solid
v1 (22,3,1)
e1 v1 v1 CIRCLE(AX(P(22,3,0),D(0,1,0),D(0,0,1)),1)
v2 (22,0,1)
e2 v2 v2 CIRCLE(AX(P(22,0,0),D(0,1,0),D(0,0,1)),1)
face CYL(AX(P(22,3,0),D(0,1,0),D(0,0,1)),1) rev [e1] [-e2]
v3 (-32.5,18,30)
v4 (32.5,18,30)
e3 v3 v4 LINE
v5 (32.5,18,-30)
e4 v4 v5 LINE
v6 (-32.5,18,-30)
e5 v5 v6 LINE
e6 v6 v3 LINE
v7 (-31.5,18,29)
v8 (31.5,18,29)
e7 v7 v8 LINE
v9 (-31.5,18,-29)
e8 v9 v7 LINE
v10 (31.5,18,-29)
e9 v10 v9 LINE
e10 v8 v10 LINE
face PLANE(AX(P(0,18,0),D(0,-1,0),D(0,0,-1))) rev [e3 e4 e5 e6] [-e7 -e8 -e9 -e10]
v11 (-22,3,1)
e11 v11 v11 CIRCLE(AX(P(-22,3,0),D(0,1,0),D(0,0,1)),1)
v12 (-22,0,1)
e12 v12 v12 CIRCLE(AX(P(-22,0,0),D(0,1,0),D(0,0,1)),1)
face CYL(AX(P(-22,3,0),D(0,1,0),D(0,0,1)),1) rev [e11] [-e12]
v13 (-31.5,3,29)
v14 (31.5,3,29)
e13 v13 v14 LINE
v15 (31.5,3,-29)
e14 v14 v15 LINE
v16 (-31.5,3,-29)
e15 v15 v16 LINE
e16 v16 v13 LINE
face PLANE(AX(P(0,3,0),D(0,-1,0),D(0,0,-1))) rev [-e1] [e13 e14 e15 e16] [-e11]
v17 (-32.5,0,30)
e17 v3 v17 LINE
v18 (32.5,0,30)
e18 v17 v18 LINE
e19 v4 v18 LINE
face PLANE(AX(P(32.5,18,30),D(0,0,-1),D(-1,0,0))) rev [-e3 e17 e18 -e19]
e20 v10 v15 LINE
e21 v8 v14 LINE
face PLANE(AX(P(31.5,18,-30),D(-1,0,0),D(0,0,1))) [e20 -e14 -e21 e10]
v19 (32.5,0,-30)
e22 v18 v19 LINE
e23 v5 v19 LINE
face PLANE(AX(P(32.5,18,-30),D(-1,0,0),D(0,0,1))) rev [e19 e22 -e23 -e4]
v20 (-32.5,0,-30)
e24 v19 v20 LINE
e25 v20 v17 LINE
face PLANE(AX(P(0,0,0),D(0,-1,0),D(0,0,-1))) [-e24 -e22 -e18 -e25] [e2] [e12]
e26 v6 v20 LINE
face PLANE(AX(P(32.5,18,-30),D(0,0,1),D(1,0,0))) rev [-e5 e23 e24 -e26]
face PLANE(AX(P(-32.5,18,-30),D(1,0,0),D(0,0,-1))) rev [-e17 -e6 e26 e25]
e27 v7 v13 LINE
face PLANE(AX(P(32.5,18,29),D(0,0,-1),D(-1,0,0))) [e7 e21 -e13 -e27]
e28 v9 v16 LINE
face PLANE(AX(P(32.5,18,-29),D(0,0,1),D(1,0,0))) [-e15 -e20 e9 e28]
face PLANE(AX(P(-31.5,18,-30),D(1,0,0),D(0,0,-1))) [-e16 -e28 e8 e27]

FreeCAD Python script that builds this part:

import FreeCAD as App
import Part
import Sketcher
from FreeCAD import Vector
Q = App.Units.Quantity


def faces_at(feature, points):
    """Names of the faces that lie closest to the given points."""
    faces = feature.Shape.Faces
    near = lambda p: min(range(len(faces)), key=lambda i: faces[i].distToShape(Part.Vertex(*p))[0])
    return sorted({f"Face{near(p) + 1}" for p in points})


def add_polygon(sketch, points):
    """Adds a closed chain of lines whose ends are joined by coincident constraints."""
    first, n = sketch.GeometryCount, len(points)
    for a, b in zip(points, points[1:] + points[:1]):
        sketch.addGeometry(Part.LineSegment(App.Vector(*a, 0), App.Vector(*b, 0)), False)
    for i in range(n):
        sketch.addConstraint(Sketcher.Constraint("Coincident", first + i, 2, first + (i + 1) % n, 1))

doc = App.newDocument("Part")
body = doc.addObject("PartDesign::Body", "Body")

# Sketch on XZ plane
sketch1 = body.newObject("Sketcher::SketchObject", "Sketch")
sketch1.AttachmentSupport = (doc.getObject("XZ_Plane"), [""])
sketch1.MapMode = "FlatFace"
add_polygon(sketch1, [(-32.5, -30), (-32.5, 30), (32.5, 30), (32.5, -30)])  # lines 0-3
sketch1.addConstraint(Sketcher.Constraint("Vertical", 0))
sketch1.addConstraint(Sketcher.Constraint("Horizontal", 1))
sketch1.addConstraint(Sketcher.Constraint("Vertical", 2))
sketch1.addConstraint(Sketcher.Constraint("Horizontal", 3))
sketch1.addConstraint(Sketcher.Constraint("Symmetric", 0, 2, 2, 2, -1, 1))
sketch1.addConstraint(Sketcher.Constraint("DistanceX", 1, 1, 1, 2, Q("65 mm")))
sketch1.addConstraint(Sketcher.Constraint("DistanceY", 0, 1, 0, 2, Q("60 mm")))
pad1 = body.newObject("PartDesign::Pad", "Pad")
pad1.Profile = sketch1
pad1.Length = 18
pad1.Reversed = True
doc.recompute()

thickness = body.newObject("PartDesign::Thickness", "Thickness")
thickness.Base = (pad1, faces_at(pad1, [(0, 18, 0)]))
thickness.Value = 3
thickness.Reversed = True
thickness.Join = "Intersection"

# Sketch on XY plane
sketch2 = body.newObject("Sketcher::SketchObject", "Sketch001")
sketch2.AttachmentSupport = (doc.getObject("XY_Plane"), [""])
sketch2.MapMode = "FlatFace"
sketch2.AttachmentOffset = App.Placement(Vector(0, 0, 27), App.Rotation())
add_polygon(sketch2, [(-29.5, 18), (-29.5, 3), (29.5, 3), (29.5, 18)])  # lines 0-3
sketch2.addConstraint(Sketcher.Constraint("Vertical", 0))
sketch2.addConstraint(Sketcher.Constraint("Horizontal", 1))
sketch2.addConstraint(Sketcher.Constraint("Vertical", 2))
sketch2.addConstraint(Sketcher.Constraint("Horizontal", 3))
sketch2.addConstraint(Sketcher.Constraint("DistanceX", 1, 1, 1, 2, Q("59 mm")))
sketch2.addConstraint(Sketcher.Constraint("DistanceY", 0, 2, 0, 1, Q("15 mm")))
sketch2.addConstraint(Sketcher.Constraint("DistanceY", -1, 1, 0, 2, Q("3 mm")))
sketch2.addConstraint(Sketcher.Constraint("DistanceX", 0, 2, -1, 1, Q("29.5 mm")))
pocket1 = body.newObject("PartDesign::Pocket", "Pocket")
pocket1.Profile = sketch2
pocket1.Length = 2
pocket1.Reversed = True

# Sketch on YZ plane
sketch3 = body.newObject("Sketcher::SketchObject", "Sketch002")
sketch3.AttachmentSupport = (doc.getObject("YZ_Plane"), [""])
sketch3.MapMode = "FlatFace"
sketch3.AttachmentOffset = App.Placement(Vector(0, 0, 29.5), App.Rotation())
add_polygon(sketch3, [(3, -27), (18, -27), (18, 29), (3, 29)])  # lines 0-3
sketch3.addConstraint(Sketcher.Constraint("Horizontal", 0))
sketch3.addConstraint(Sketcher.Constraint("Vertical", 1))
sketch3.addConstraint(Sketcher.Constraint("Horizontal", 2))
sketch3.addConstraint(Sketcher.Constraint("Vertical", 3))
sketch3.addConstraint(Sketcher.Constraint("DistanceX", 0, 1, 0, 2, Q("15 mm")))
sketch3.addConstraint(Sketcher.Constraint("DistanceY", 1, 1, 1, 2, Q("56 mm")))
sketch3.addConstraint(Sketcher.Constraint("DistanceX", -1, 1, 0, 2, Q("18 mm")))
sketch3.addConstraint(Sketcher.Constraint("DistanceY", 0, 2, -1, 1, Q("27 mm")))
pocket2 = body.newObject("PartDesign::Pocket", "Pocket001")
pocket2.Profile = sketch3
pocket2.Length = 2
pocket2.Reversed = True

# Sketch on YZ plane
sketch4 = body.newObject("Sketcher::SketchObject", "Sketch003")
sketch4.AttachmentSupport = (doc.getObject("YZ_Plane"), [""])
sketch4.MapMode = "FlatFace"
sketch4.AttachmentOffset = App.Placement(Vector(0, 0, -29.5), App.Rotation())
add_polygon(sketch4, [(3, 29), (18, 29), (18, -27), (3, -27)])  # lines 0-3
sketch4.addConstraint(Sketcher.Constraint("Horizontal", 0))
sketch4.addConstraint(Sketcher.Constraint("Vertical", 1))
sketch4.addConstraint(Sketcher.Constraint("Horizontal", 2))
sketch4.addConstraint(Sketcher.Constraint("Vertical", 3))
sketch4.addConstraint(Sketcher.Constraint("DistanceX", 0, 1, 0, 2, Q("15 mm")))
sketch4.addConstraint(Sketcher.Constraint("DistanceY", 1, 2, 1, 1, Q("56 mm")))
sketch4.addConstraint(Sketcher.Constraint("DistanceX", -1, 1, 0, 2, Q("18 mm")))
sketch4.addConstraint(Sketcher.Constraint("DistanceY", -1, 1, 0, 2, Q("29 mm")))
pocket3 = body.newObject("PartDesign::Pocket", "Pocket002")
pocket3.Profile = sketch4
pocket3.Length = 2

# Sketch on XY plane
sketch5 = body.newObject("Sketcher::SketchObject", "Sketch004")
sketch5.AttachmentSupport = (doc.getObject("XY_Plane"), [""])
sketch5.MapMode = "FlatFace"
sketch5.AttachmentOffset = App.Placement(Vector(0, 0, -27), App.Rotation())
add_polygon(sketch5, [(31.5, 18), (31.5, 3), (-31.5, 3), (-31.5, 18)])  # lines 0-3
sketch5.addConstraint(Sketcher.Constraint("Vertical", 0))
sketch5.addConstraint(Sketcher.Constraint("Horizontal", 1))
sketch5.addConstraint(Sketcher.Constraint("Vertical", 2))
sketch5.addConstraint(Sketcher.Constraint("Horizontal", 3))
sketch5.addConstraint(Sketcher.Constraint("DistanceX", 1, 2, 1, 1, Q("63 mm")))
sketch5.addConstraint(Sketcher.Constraint("DistanceY", 0, 2, 0, 1, Q("15 mm")))
sketch5.addConstraint(Sketcher.Constraint("DistanceY", -1, 1, 0, 2, Q("3 mm")))
sketch5.addConstraint(Sketcher.Constraint("DistanceX", -1, 1, 0, 2, Q("31.5 mm")))
pocket4 = body.newObject("PartDesign::Pocket", "Pocket003")
pocket4.Profile = sketch5
pocket4.Length = 2

# Sketch on XZ plane
sketch6 = body.newObject("Sketcher::SketchObject", "Sketch005")
sketch6.AttachmentSupport = (doc.getObject("XZ_Plane"), [""])
sketch6.MapMode = "FlatFace"
sketch6.AttachmentOffset = App.Placement(Vector(0, 0, -3), App.Rotation())
sketch6.addGeometry(Part.Circle(Vector(-22, 0, 0), Vector(0, 0, 1), 1), False)
sketch6.addGeometry(Part.Circle(Vector(22, 0, 0), Vector(0, 0, 1), 1), False)
sketch6.addConstraint(Sketcher.Constraint("Equal", 0, 1))
sketch6.addConstraint(Sketcher.Constraint("Symmetric", 0, 3, 1, 3, -1, 1))
sketch6.addConstraint(Sketcher.Constraint("PointOnObject", 0, 3, -1))
sketch6.addConstraint(Sketcher.Constraint("Diameter", 0, Q("2 mm")))
sketch6.addConstraint(Sketcher.Constraint("DistanceX", 0, 3, -1, 1, Q("22 mm")))
doc.recompute()
hole = body.newObject("PartDesign::Hole", "Hole")
hole.Profile = sketch6
hole.ThreadType = "None"
hole.Diameter = 2
hole.DepthType = "ThroughAll"
hole.Reversed = True

doc.recompute()
